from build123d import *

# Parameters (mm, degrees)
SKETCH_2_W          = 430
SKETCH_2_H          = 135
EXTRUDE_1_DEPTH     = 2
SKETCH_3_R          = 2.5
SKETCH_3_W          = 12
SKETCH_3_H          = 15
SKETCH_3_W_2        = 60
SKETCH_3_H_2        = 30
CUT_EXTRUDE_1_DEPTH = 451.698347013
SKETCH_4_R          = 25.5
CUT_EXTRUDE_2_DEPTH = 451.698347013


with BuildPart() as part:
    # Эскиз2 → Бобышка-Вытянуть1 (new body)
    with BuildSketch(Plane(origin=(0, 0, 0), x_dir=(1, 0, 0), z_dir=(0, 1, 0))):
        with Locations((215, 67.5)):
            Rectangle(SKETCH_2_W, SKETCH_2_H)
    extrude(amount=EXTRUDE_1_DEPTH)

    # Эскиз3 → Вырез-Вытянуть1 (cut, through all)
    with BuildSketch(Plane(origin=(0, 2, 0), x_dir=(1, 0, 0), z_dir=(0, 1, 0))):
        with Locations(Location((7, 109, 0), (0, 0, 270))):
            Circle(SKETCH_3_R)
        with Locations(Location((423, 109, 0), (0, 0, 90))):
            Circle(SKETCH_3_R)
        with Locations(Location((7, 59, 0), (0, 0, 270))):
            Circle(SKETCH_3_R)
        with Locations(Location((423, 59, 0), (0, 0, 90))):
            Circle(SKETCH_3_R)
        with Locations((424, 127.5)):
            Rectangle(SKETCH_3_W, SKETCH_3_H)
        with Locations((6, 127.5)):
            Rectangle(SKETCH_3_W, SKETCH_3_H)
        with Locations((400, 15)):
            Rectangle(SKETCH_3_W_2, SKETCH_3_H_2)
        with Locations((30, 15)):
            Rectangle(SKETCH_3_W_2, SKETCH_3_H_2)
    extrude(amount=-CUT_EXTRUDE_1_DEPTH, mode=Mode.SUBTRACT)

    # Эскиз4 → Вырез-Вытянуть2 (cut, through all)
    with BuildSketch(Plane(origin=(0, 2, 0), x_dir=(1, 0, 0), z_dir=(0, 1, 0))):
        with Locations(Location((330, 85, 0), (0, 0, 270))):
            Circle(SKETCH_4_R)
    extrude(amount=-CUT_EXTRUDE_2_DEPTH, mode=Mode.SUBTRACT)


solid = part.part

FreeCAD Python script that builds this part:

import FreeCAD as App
import Part
import Sketcher

V = App.Vector


def add_polygon(sketch, points):
    """Adds a closed chain of lines whose ends are joined by coincident constraints."""
    first, n = sketch.GeometryCount, len(points)
    for a, b in zip(points, points[1:] + points[:1]):
        sketch.addGeometry(Part.LineSegment(App.Vector(*a, 0), App.Vector(*b, 0)), False)
    for i in range(n):
        sketch.addConstraint(Sketcher.Constraint("Coincident", first + i, 2, first + (i + 1) % n, 1))

doc = App.newDocument("Part")
body = doc.addObject("PartDesign::Body", "Body")

# Sketch on XZ plane
sketch1 = body.newObject("Sketcher::SketchObject", "Sketch")
sketch1.AttachmentSupport = (doc.getObject("XZ_Plane"), [""])
sketch1.MapMode = "FlatFace"
add_polygon(sketch1, [(0, -135), (0, 0), (430, 0), (430, -135)])  # lines 0-3
sketch1.addConstraint([
    Sketcher.Constraint("Vertical", 0),
    Sketcher.Constraint("Horizontal", 1),
    Sketcher.Constraint("Vertical", 2),
    Sketcher.Constraint("Horizontal", 3),
    Sketcher.Constraint("Coincident", 0, 2, -1, 1),
    Sketcher.Constraint("DistanceX", 1, 1, 1, 2, 430.0),
    Sketcher.Constraint("DistanceY", 0, 1, 0, 2, 135.0),
])
pad1 = body.newObject("PartDesign::Pad", "Pad")
pad1.Profile = sketch1
pad1.Length = 2
pad1.Reversed = True

# Sketch on XZ plane
sketch2 = body.newObject("Sketcher::SketchObject", "Sketch001")
sketch2.AttachmentSupport = (doc.getObject("XZ_Plane"), [""])
sketch2.MapMode = "FlatFace"
sketch2.AttachmentOffset = App.Placement(V(0, 0, -2), App.Rotation())
sketch2.addGeometry(Part.Circle(V(7, -109, 0), V(0, 0, 1), 2.5), False)  # 0
sketch2.addGeometry(Part.Circle(V(423, -109, 0), V(0, 0, 1), 2.5), False)  # 1
sketch2.addGeometry(Part.Circle(V(7, -59, 0), V(0, 0, 1), 2.5), False)  # 2
sketch2.addGeometry(Part.Circle(V(423, -59, 0), V(0, 0, 1), 2.5), False)  # 3
add_polygon(sketch2, [(418, -135), (418, -120), (430, -120), (430, -135)])  # lines 4-7
add_polygon(sketch2, [(0, -135), (0, -120), (12, -120), (12, -135)])  # lines 8-11
add_polygon(sketch2, [(370, -30), (370, 0), (430, 0), (430, -30)])  # lines 12-15
add_polygon(sketch2, [(0, -30), (0, 0), (60, 0), (60, -30)])  # lines 16-19
sketch2.addConstraint([
    Sketcher.Constraint("Vertical", 4),
    Sketcher.Constraint("Horizontal", 5),
    Sketcher.Constraint("Vertical", 6),
    Sketcher.Constraint("Horizontal", 7),
    Sketcher.Constraint("Vertical", 8),
    Sketcher.Constraint("Horizontal", 9),
    Sketcher.Constraint("Vertical", 10),
    Sketcher.Constraint("Horizontal", 11),
    Sketcher.Constraint("Vertical", 12),
    Sketcher.Constraint("Horizontal", 13),
    Sketcher.Constraint("Vertical", 14),
    Sketcher.Constraint("Horizontal", 15),
    Sketcher.Constraint("Vertical", 16),
    Sketcher.Constraint("Horizontal", 17),
    Sketcher.Constraint("Vertical", 18),
    Sketcher.Constraint("Horizontal", 19),
    Sketcher.Constraint("Coincident", 16, 2, -1, 1),
    Sketcher.Constraint("Equal", 0, 1),
    Sketcher.Constraint("Equal", 1, 2),
    Sketcher.Constraint("Equal", 2, 3),
    Sketcher.Constraint("PointOnObject", 8, 2, -2),
    Sketcher.Constraint("PointOnObject", 12, 2, -1),
    Sketcher.Constraint("Horizontal", 0, 3, 1, 3),
    Sketcher.Constraint("Horizontal", 2, 3, 3, 3),
    Sketcher.Constraint("Horizontal", 5, 2, 8, 2),
    Sketcher.Constraint("Horizontal", 7, 2, 10, 2),
    Sketcher.Constraint("Horizontal", 15, 2, 18, 2),
    Sketcher.Constraint("Vertical", 0, 3, 2, 3),
    Sketcher.Constraint("Vertical", 1, 3, 3, 3),
    Sketcher.Constraint("Vertical", 6, 2, 13, 2),
    Sketcher.Constraint("Equal", 7, 9),
    Sketcher.Constraint("Equal", 15, 17),
    Sketcher.Constraint("Diameter", 0, 5.0),
    Sketcher.Constraint("DistanceX", 5, 1, 5, 2, 12.0),
    Sketcher.Constraint("DistanceX", 13, 1, 13, 2, 60.0),
    Sketcher.Constraint("DistanceY", 4, 1, 4, 2, 15.0),
    Sketcher.Constraint("DistanceY", 12, 1, 12, 2, 30.0),
    Sketcher.Constraint("DistanceX", -1, 1, 0, 3, 7.0),
    Sketcher.Constraint("DistanceY", 0, 3, -1, 1, 109.0),
    Sketcher.Constraint("DistanceX", -1, 1, 1, 3, 423.0),
    Sketcher.Constraint("DistanceY", 2, 3, -1, 1, 59.0),
    Sketcher.Constraint("DistanceX", -1, 1, 4, 2, 418.0),
    Sketcher.Constraint("DistanceY", 4, 2, -1, 1, 120.0),
])
pocket1 = body.newObject("PartDesign::Pocket", "Pocket")
pocket1.Profile = sketch2
pocket1.Type = "ThroughAll"
pocket1.Reversed = True

# Sketch on XZ plane
sketch3 = body.newObject("Sketcher::SketchObject", "Sketch002")
sketch3.AttachmentSupport = (doc.getObject("XZ_Plane"), [""])
sketch3.MapMode = "FlatFace"
sketch3.AttachmentOffset = App.Placement(V(0, 0, -2), App.Rotation())
sketch3.addGeometry(Part.Circle(V(330, -85, 0), V(0, 0, 1), 26), False)
sketch3.addConstraint([
    Sketcher.Constraint("Diameter", 0, 51.0),
    Sketcher.Constraint("DistanceX", -1, 1, 0, 3, 330.0),
    Sketcher.Constraint("DistanceY", 0, 3, -1, 1, 85.0),
])
pocket2 = body.newObject("PartDesign::Pocket", "Pocket001")
pocket2.Profile = sketch3
pocket2.Type = "ThroughAll"
pocket2.Reversed = True

doc.recompute()
